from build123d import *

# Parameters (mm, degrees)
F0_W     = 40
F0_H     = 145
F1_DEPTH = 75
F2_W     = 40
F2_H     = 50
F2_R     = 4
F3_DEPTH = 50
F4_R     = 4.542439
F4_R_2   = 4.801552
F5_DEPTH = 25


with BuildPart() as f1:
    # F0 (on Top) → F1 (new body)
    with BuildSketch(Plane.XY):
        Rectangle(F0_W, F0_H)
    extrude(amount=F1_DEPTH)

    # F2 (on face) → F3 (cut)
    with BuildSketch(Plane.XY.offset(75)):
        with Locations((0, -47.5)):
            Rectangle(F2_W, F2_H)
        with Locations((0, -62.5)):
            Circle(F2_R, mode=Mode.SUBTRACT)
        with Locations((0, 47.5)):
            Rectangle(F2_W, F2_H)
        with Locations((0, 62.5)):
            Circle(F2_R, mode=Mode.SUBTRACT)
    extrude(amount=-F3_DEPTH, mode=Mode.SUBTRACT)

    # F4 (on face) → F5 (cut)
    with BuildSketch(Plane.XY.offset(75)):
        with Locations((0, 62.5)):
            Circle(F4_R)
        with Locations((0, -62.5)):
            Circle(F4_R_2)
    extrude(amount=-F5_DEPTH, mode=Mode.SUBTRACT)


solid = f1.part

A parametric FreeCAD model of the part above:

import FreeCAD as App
import Part
import Sketcher

V = App.Vector
Q = App.Units.Quantity

doc = App.newDocument("Part")
body = doc.addObject("PartDesign::Body", "Body")

# Sketch on XY plane
sketch1 = body.newObject("Sketcher::SketchObject", "Sketch")
sketch1.AttachmentSupport = (doc.getObject("XY_Plane"), [""])
sketch1.MapMode = "FlatFace"
sketch1.addGeometry(Part.LineSegment(V(-20, 72.5, 0), V(-20, -72.5, 0)), False)
sketch1.addGeometry(Part.LineSegment(V(-20, -72.5, 0), V(20, -72.5, 0)), False)
sketch1.addGeometry(Part.LineSegment(V(20, -72.5, 0), V(20, 72.5, 0)), False)
sketch1.addGeometry(Part.LineSegment(V(20, 72.5, 0), V(-20, 72.5, 0)), False)
sketch1.addConstraint(Sketcher.Constraint("Coincident", 0, 2, 1, 1))
sketch1.addConstraint(Sketcher.Constraint("Coincident", 1, 2, 2, 1))
sketch1.addConstraint(Sketcher.Constraint("Coincident", 2, 2, 3, 1))
sketch1.addConstraint(Sketcher.Constraint("Coincident", 3, 2, 0, 1))
sketch1.addConstraint(Sketcher.Constraint("Vertical", 0))
sketch1.addConstraint(Sketcher.Constraint("Horizontal", 1))
sketch1.addConstraint(Sketcher.Constraint("Vertical", 2))
sketch1.addConstraint(Sketcher.Constraint("Horizontal", 3))
sketch1.addConstraint(Sketcher.Constraint("Symmetric", 0, 2, 2, 2, -1, 1))
sketch1.addConstraint(Sketcher.Constraint("DistanceX", 1, 1, 1, 2, Q("40 mm")))
sketch1.addConstraint(Sketcher.Constraint("DistanceY", 0, 2, 0, 1, Q("145 mm")))
pad1 = body.newObject("PartDesign::Pad", "Pad")
pad1.Profile = sketch1
pad1.Length = 75

# Sketch on XY plane
sketch2 = body.newObject("Sketcher::SketchObject", "Sketch001")
sketch2.AttachmentSupport = (doc.getObject("XY_Plane"), [""])
sketch2.MapMode = "FlatFace"
sketch2.AttachmentOffset = App.Placement(V(0, 0, 75), App.Rotation())
sketch2.addGeometry(Part.LineSegment(V(-20, -22.5, 0), V(-20, -72.5, 0)), False)
sketch2.addGeometry(Part.LineSegment(V(-20, -72.5, 0), V(20, -72.5, 0)), False)
sketch2.addGeometry(Part.LineSegment(V(20, -72.5, 0), V(20, -22.5, 0)), False)
sketch2.addGeometry(Part.LineSegment(V(20, -22.5, 0), V(-20, -22.5, 0)), False)
sketch2.addGeometry(Part.Circle(V(0, -62.5, 0), V(0, 0, 1), 4), False)
sketch2.addGeometry(Part.LineSegment(V(-20, 72.5, 0), V(-20, 22.5, 0)), False)
sketch2.addGeometry(Part.LineSegment(V(-20, 22.5, 0), V(20, 22.5, 0)), False)
sketch2.addGeometry(Part.LineSegment(V(20, 22.5, 0), V(20, 72.5, 0)), False)
sketch2.addGeometry(Part.LineSegment(V(20, 72.5, 0), V(-20, 72.5, 0)), False)
sketch2.addGeometry(Part.Circle(V(0, 62.5, 0), V(0, 0, 1), 4), False)
sketch2.addConstraint(Sketcher.Constraint("Coincident", 0, 2, 1, 1))
sketch2.addConstraint(Sketcher.Constraint("Coincident", 1, 2, 2, 1))
sketch2.addConstraint(Sketcher.Constraint("Coincident", 2, 2, 3, 1))
sketch2.addConstraint(Sketcher.Constraint("Coincident", 3, 2, 0, 1))
sketch2.addConstraint(Sketcher.Constraint("Coincident", 5, 2, 6, 1))
sketch2.addConstraint(Sketcher.Constraint("Coincident", 6, 2, 7, 1))
sketch2.addConstraint(Sketcher.Constraint("Coincident", 7, 2, 8, 1))
sketch2.addConstraint(Sketcher.Constraint("Coincident", 8, 2, 5, 1))
sketch2.addConstraint(Sketcher.Constraint("Vertical", 0))
sketch2.addConstraint(Sketcher.Constraint("Horizontal", 1))
sketch2.addConstraint(Sketcher.Constraint("Vertical", 2))
sketch2.addConstraint(Sketcher.Constraint("Horizontal", 3))
sketch2.addConstraint(Sketcher.Constraint("Vertical", 5))
sketch2.addConstraint(Sketcher.Constraint("Horizontal", 6))
sketch2.addConstraint(Sketcher.Constraint("Vertical", 7))
sketch2.addConstraint(Sketcher.Constraint("Horizontal", 8))
sketch2.addConstraint(Sketcher.Constraint("Equal", 4, 9))
sketch2.addConstraint(Sketcher.Constraint("Symmetric", 4, 3, 9, 3, -1, 1))
sketch2.addConstraint(Sketcher.Constraint("Symmetric", 2, 2, 5, 2, -1, 1))
sketch2.addConstraint(Sketcher.Constraint("Symmetric", 0, 2, 7, 2, -1, 1))
sketch2.addConstraint(Sketcher.Constraint("PointOnObject", 4, 3, -2))
sketch2.addConstraint(Sketcher.Constraint("Vertical", 3, 2, 5, 2))
sketch2.addConstraint(Sketcher.Constraint("Diameter", 4, Q("8 mm")))
sketch2.addConstraint(Sketcher.Constraint("DistanceX", 1, 1, 1, 2, Q("40 mm")))
sketch2.addConstraint(Sketcher.Constraint("DistanceY", 0, 2, 0, 1, Q("50 mm")))
sketch2.addConstraint(Sketcher.Constraint("DistanceY", 4, 3, 9, 3, Q("125 mm")))
sketch2.addConstraint(Sketcher.Constraint("DistanceY", 0, 2, 4, 3, Q("10 mm")))
pocket1 = body.newObject("PartDesign::Pocket", "Pocket")
pocket1.Profile = sketch2
pocket1.Length = 50

# Sketch on XY plane
sketch3 = body.newObject("Sketcher::SketchObject", "Sketch002")
sketch3.AttachmentSupport = (doc.getObject("XY_Plane"), [""])
sketch3.MapMode = "FlatFace"
sketch3.AttachmentOffset = App.Placement(V(0, 0, 75), App.Rotation())
sketch3.addGeometry(Part.Circle(V(0, 62.5, 0), V(0, 0, 1), 4.542439), False)
sketch3.addGeometry(Part.Circle(V(0, -62.5, 0), V(0, 0, 1), 4.801552), False)
sketch3.addConstraint(Sketcher.Constraint("Symmetric", 0, 3, 1, 3, -1, 1))
sketch3.addConstraint(Sketcher.Constraint("PointOnObject", 0, 3, -2))
sketch3.addConstraint(Sketcher.Constraint("DistanceY", 1, 3, 0, 3, Q("125 mm")))
sketch3.addConstraint(Sketcher.Constraint("Diameter", 0, Q("9.084878 mm")))
sketch3.addConstraint(Sketcher.Constraint("Diameter", 1, Q("9.603104 mm")))
pocket2 = body.newObject("PartDesign::Pocket", "Pocket001")
pocket2.Profile = sketch3
pocket2.Length = 25

doc.recompute()
